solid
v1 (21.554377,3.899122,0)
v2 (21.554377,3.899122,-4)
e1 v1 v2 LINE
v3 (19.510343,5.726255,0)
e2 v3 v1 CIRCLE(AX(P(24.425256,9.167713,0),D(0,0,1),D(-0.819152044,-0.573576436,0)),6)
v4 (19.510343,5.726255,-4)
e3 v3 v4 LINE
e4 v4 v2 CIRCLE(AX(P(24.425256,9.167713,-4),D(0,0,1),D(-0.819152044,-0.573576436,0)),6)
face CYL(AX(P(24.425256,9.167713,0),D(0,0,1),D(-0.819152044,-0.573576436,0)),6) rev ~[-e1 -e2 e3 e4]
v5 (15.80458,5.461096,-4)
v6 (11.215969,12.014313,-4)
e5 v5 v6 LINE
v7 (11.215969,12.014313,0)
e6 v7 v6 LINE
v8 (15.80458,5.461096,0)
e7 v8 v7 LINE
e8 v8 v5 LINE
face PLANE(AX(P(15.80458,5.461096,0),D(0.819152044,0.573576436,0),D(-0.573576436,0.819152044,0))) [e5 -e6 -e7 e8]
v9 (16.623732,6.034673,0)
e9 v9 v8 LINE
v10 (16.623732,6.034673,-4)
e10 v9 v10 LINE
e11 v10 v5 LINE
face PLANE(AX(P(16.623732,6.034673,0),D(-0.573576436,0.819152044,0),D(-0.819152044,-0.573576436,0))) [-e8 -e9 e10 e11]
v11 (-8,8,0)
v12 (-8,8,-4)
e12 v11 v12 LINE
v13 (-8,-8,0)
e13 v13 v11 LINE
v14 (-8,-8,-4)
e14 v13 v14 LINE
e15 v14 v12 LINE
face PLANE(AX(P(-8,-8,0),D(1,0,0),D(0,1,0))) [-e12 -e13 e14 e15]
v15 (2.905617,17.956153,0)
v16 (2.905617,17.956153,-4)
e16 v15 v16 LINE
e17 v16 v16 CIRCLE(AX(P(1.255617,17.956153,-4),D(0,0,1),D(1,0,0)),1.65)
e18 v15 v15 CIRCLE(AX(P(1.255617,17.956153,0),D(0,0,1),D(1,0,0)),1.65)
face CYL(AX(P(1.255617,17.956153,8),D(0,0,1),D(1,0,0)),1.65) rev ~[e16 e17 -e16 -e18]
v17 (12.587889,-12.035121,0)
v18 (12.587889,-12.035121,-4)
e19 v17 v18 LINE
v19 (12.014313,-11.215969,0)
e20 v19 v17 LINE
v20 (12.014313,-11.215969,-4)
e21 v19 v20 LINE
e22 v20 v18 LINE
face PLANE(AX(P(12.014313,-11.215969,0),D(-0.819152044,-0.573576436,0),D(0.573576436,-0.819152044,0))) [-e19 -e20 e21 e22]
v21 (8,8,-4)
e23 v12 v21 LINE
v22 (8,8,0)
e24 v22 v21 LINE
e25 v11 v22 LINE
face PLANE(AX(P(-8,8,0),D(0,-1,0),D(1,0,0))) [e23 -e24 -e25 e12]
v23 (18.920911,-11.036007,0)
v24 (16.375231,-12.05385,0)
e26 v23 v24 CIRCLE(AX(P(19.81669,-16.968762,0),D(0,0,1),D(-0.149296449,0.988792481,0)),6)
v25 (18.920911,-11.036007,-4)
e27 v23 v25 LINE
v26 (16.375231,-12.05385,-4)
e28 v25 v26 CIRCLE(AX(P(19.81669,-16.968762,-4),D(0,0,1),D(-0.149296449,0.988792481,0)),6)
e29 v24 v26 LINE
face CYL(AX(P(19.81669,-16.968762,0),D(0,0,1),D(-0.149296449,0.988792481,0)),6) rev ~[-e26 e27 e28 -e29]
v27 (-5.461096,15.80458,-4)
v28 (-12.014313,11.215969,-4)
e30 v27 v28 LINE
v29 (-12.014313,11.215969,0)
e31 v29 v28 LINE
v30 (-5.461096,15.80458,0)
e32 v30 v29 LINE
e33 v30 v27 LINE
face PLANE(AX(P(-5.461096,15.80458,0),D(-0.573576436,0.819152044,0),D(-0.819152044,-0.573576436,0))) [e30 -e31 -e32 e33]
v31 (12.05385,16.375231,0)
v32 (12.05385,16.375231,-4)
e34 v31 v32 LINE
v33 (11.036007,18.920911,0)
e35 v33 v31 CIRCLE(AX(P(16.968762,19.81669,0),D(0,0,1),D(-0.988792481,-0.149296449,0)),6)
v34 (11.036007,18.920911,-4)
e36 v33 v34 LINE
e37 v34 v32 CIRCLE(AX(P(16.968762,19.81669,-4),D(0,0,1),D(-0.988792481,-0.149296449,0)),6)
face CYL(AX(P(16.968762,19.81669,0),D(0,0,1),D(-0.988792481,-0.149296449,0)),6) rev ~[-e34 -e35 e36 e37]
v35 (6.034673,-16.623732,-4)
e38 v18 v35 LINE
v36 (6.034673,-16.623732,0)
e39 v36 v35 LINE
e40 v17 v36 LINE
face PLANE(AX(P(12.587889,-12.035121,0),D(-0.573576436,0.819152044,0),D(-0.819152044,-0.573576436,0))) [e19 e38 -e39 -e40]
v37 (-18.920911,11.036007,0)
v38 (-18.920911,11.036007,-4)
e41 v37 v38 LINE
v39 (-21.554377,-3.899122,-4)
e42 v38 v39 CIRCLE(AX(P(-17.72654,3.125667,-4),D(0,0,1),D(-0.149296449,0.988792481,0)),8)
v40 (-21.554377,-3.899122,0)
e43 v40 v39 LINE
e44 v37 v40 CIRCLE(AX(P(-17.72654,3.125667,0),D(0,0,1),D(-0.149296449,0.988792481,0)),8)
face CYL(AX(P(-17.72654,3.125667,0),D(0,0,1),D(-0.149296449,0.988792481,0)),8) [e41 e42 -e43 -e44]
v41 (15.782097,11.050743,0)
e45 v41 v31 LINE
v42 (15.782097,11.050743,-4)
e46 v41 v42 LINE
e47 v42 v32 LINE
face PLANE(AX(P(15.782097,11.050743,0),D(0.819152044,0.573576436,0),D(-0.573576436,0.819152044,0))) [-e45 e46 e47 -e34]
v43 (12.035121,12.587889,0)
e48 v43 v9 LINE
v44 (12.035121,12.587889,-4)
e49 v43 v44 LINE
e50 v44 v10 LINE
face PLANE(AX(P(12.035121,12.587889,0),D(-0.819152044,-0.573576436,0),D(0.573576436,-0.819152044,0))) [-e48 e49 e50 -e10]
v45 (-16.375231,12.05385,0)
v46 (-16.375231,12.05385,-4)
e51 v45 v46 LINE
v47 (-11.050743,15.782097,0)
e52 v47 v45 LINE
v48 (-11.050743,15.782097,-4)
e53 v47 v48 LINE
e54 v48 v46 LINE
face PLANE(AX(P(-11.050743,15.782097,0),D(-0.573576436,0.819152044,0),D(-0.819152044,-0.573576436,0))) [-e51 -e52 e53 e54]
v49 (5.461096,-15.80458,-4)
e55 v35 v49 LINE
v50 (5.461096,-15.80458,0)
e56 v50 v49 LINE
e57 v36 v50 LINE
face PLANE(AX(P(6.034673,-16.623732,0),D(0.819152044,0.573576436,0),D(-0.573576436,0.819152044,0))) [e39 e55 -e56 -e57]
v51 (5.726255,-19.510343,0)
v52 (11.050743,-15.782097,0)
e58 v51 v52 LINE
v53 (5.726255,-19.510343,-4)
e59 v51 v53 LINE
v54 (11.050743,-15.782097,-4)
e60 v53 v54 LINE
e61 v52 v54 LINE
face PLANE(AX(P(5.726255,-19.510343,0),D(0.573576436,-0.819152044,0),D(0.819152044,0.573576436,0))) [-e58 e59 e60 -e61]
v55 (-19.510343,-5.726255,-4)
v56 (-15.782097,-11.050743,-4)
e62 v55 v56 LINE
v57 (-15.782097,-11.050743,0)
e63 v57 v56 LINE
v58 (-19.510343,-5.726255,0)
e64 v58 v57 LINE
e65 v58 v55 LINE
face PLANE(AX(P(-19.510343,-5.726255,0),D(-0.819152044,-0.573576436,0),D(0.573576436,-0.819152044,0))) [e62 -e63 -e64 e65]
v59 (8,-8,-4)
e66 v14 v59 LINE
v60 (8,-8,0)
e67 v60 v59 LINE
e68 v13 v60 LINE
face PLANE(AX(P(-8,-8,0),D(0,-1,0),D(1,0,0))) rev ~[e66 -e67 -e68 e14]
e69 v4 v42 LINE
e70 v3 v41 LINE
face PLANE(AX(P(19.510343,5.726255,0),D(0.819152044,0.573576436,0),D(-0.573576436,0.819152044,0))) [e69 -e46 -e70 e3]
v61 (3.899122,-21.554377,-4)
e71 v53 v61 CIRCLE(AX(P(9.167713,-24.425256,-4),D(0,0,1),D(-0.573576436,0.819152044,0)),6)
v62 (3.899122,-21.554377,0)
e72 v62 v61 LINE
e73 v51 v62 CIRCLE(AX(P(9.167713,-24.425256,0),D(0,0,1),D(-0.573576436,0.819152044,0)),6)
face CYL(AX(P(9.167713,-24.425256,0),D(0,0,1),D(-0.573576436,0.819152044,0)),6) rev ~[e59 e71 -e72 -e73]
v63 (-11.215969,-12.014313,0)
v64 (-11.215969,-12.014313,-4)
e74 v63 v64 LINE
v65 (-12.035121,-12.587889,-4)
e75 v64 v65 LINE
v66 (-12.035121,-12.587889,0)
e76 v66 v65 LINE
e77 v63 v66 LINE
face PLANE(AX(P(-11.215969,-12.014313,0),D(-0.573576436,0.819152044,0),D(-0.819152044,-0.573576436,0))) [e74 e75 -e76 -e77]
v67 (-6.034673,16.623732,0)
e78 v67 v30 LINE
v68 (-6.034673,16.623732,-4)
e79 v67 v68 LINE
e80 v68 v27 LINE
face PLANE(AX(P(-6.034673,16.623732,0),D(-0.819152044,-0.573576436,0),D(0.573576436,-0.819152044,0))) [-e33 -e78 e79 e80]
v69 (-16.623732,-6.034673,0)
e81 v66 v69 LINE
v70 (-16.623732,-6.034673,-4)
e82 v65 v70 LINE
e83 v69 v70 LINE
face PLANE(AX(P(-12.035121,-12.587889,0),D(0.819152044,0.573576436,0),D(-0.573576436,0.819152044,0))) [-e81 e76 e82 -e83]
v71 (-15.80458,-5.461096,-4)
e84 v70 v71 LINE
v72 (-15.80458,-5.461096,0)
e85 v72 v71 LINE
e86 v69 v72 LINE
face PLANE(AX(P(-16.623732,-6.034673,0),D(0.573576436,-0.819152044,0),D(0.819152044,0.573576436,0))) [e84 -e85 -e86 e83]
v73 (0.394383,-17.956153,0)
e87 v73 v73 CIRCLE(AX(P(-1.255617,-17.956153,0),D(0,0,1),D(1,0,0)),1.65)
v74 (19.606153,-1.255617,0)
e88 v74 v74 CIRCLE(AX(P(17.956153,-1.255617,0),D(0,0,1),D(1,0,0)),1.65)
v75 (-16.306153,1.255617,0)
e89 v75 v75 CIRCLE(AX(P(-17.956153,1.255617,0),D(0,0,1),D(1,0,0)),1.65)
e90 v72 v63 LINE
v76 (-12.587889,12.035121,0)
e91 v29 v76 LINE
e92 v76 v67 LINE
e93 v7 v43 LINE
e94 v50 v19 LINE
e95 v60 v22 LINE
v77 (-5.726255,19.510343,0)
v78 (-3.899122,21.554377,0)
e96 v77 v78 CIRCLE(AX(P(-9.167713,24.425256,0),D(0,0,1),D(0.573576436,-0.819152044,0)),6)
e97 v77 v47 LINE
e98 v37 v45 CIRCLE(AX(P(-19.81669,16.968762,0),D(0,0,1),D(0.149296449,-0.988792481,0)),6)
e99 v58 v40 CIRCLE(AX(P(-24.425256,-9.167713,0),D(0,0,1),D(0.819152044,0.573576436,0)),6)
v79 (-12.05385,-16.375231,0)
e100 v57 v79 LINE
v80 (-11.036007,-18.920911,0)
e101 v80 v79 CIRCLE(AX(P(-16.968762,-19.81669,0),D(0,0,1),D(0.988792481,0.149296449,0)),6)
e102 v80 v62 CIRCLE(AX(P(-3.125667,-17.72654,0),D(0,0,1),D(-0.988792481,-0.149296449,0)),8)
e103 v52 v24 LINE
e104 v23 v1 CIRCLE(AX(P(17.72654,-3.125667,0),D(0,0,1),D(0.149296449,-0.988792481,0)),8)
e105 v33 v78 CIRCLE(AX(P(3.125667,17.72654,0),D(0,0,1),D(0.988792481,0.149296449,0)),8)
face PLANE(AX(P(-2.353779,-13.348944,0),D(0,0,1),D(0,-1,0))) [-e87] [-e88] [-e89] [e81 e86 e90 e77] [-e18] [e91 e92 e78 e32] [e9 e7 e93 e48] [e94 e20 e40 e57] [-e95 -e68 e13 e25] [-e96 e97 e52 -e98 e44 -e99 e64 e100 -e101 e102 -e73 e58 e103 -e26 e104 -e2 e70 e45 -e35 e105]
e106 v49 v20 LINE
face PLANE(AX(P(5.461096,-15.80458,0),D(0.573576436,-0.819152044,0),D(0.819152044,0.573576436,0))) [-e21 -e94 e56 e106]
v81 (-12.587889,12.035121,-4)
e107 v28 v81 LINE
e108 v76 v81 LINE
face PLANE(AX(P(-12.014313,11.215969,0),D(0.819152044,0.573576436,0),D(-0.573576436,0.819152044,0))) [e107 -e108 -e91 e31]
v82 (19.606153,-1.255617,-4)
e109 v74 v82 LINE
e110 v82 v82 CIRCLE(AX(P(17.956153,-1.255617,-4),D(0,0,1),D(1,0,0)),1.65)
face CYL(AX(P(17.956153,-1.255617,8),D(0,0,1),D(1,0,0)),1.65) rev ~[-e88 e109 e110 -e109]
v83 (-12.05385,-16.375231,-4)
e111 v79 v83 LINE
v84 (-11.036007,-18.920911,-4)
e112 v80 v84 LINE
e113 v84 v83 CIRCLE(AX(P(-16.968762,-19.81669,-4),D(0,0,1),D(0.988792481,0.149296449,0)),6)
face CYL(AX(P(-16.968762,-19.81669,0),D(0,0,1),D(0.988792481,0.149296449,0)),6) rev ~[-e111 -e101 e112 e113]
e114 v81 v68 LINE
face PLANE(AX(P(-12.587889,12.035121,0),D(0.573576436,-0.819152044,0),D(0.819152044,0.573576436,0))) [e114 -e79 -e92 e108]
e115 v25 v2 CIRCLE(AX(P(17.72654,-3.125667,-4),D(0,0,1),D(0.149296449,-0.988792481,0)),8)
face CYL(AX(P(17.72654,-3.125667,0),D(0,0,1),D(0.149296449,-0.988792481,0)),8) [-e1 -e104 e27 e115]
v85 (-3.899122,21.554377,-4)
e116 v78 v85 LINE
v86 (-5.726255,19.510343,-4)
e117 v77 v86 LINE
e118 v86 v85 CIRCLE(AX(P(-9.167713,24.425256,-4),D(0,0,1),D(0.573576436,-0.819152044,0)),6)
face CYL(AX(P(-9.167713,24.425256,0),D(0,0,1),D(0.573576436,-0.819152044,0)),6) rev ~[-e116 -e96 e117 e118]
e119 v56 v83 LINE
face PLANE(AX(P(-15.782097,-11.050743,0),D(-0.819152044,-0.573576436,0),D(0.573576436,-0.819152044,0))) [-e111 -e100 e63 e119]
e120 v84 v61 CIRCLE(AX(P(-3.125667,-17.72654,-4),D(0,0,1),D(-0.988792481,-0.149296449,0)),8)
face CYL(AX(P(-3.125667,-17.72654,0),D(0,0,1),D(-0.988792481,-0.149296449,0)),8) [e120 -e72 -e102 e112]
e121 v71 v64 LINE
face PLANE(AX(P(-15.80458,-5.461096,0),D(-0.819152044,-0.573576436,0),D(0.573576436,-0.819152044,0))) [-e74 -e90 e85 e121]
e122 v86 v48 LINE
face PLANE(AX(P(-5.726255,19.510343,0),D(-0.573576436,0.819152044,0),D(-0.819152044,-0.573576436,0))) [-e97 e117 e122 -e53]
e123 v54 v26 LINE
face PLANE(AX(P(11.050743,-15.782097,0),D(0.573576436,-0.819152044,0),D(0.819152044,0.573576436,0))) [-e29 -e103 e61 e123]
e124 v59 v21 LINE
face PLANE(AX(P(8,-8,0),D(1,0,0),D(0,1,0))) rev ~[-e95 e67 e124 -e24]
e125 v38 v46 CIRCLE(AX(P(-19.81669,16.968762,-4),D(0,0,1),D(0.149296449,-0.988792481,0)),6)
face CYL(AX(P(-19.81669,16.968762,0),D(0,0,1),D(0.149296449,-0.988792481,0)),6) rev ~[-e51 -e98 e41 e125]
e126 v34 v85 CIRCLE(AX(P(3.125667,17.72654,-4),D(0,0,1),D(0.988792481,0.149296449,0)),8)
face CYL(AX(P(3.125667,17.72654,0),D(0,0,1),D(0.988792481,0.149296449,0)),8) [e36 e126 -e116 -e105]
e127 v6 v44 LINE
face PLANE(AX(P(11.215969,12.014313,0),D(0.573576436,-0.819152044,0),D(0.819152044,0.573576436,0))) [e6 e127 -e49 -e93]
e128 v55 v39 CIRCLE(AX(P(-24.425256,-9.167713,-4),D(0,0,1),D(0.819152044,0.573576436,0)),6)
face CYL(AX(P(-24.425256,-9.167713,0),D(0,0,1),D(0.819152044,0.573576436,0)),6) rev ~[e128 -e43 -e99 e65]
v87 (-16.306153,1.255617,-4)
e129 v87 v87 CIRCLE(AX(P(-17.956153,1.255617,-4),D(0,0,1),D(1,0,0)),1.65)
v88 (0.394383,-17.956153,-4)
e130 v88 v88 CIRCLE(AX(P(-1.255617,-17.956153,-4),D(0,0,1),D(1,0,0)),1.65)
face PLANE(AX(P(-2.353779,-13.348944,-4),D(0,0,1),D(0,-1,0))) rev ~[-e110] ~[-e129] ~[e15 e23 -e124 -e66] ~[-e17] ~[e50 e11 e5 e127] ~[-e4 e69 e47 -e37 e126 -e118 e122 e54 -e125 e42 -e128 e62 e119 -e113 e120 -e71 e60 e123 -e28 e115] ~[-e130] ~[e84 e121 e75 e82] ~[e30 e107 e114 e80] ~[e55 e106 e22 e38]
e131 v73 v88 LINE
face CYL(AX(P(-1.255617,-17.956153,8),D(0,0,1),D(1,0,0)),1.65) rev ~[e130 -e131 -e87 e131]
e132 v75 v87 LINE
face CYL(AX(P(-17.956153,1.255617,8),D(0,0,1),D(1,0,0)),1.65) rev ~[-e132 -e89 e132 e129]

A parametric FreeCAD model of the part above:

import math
import FreeCAD as App
import Part
import Sketcher

V = App.Vector
Q = App.Units.Quantity


def add_polygon(sketch, points):
    """Adds a closed chain of lines whose ends are joined by coincident constraints."""
    first, n = sketch.GeometryCount, len(points)
    for a, b in zip(points, points[1:] + points[:1]):
        sketch.addGeometry(Part.LineSegment(App.Vector(*a, 0), App.Vector(*b, 0)), False)
    for i in range(n):
        sketch.addConstraint(Sketcher.Constraint("Coincident", first + i, 2, first + (i + 1) % n, 1))

doc = App.newDocument("Part")
body = doc.addObject("PartDesign::Body", "Body")

# Sketch on XY plane
sketch1 = body.newObject("Sketcher::SketchObject", "Sketch")
sketch1.AttachmentSupport = (doc.getObject("XY_Plane"), [""])
sketch1.MapMode = "FlatFace"
sketch1.addGeometry(Part.ArcOfCircle(Part.Circle(V(17.7, -3.1, 0), V(0, 0, 1), 8), math.radians(-81), math.radians(61)), False)
sketch1.addGeometry(Part.ArcOfCircle(Part.Circle(V(24.4, 9.2, 0), V(0, 0, 1), 6), math.radians(-145), math.radians(-119)), False)
sketch1.addGeometry(Part.LineSegment(V(19.5, 5.7, 0), V(15.8, 11.1, 0)), False)
sketch1.addGeometry(Part.LineSegment(V(15.8, 11.1, 0), V(0, 0, 0)), False)
sketch1.addGeometry(Part.LineSegment(V(0, 0, 0), V(11.1, -15.8, 0)), False)
sketch1.addGeometry(Part.LineSegment(V(11.1, -15.8, 0), V(16.4, -12.1, 0)), False)
sketch1.addGeometry(Part.ArcOfCircle(Part.Circle(V(19.8, -17, 0), V(0, 0, 1), 6), math.radians(99), math.radians(125)), False)
sketch1.addConstraint(Sketcher.Constraint("Tangent", 0, 2, 1, 2))
sketch1.addConstraint(Sketcher.Constraint("Tangent", 1, 1, 2, 1))
sketch1.addConstraint(Sketcher.Constraint("Coincident", 2, 2, 3, 1))
sketch1.addConstraint(Sketcher.Constraint("Coincident", 3, 2, 4, 1))
sketch1.addConstraint(Sketcher.Constraint("Coincident", 4, 2, 5, 1))
sketch1.addConstraint(Sketcher.Constraint("Tangent", 5, 2, 6, 2))
sketch1.addConstraint(Sketcher.Constraint("Tangent", 6, 1, 0, 1))
sketch1.addConstraint(Sketcher.Constraint("Coincident", 3, 2, -1, 1))
sketch1.addConstraint(Sketcher.Constraint("Equal", 1, 6))
sketch1.addConstraint(Sketcher.Constraint("Perpendicular", 2, 3))
sketch1.addConstraint(Sketcher.Constraint("Perpendicular", 3, 4))
sketch1.addConstraint(Sketcher.Constraint("Perpendicular", 4, 5))
sketch1.addConstraint(Sketcher.Constraint("Equal", 3, 4))
sketch1.addConstraint(Sketcher.Constraint("Equal", 2, 5))
sketch1.addConstraint(Sketcher.Constraint("Radius", 0, 8.0))
sketch1.addConstraint(Sketcher.Constraint("Radius", 1, 6.0))
sketch1.addConstraint(Sketcher.Constraint("Angle", 2, Q("125 deg")))
sketch1.addConstraint(Sketcher.Constraint("Distance", 2, 6.5))
sketch1.addConstraint(Sketcher.Constraint("DistanceX", 4, 2, 1, 1, 8.4596))
pad1 = body.newObject("PartDesign::Pad", "Pad")
pad1.Profile = sketch1
pad1.Length = 4
pad1.Reversed = True
doc.recompute()

polarpattern = body.newObject("PartDesign::PolarPattern", "PolarPattern")
polarpattern.Originals = [pad1]
polarpattern.Axis = (doc.getObject("Z_Axis"), [""])
polarpattern.Angle = 360
polarpattern.Occurrences = 4
body.Tip = polarpattern

# Sketch on XY plane
sketch2 = body.newObject("Sketcher::SketchObject", "Sketch001")
sketch2.AttachmentSupport = (doc.getObject("XY_Plane"), [""])
sketch2.MapMode = "FlatFace"
add_polygon(sketch2, [(-8, 8), (-8, -8), (8, -8), (8, 8)])  # lines 0-3
sketch2.addConstraint(Sketcher.Constraint("Vertical", 0))
sketch2.addConstraint(Sketcher.Constraint("Horizontal", 1))
sketch2.addConstraint(Sketcher.Constraint("Vertical", 2))
sketch2.addConstraint(Sketcher.Constraint("Horizontal", 3))
sketch2.addConstraint(Sketcher.Constraint("Symmetric", 0, 2, 2, 2, -1, 1))
sketch2.addConstraint(Sketcher.Constraint("Equal", 3, 0))
sketch2.addConstraint(Sketcher.Constraint("DistanceX", 1, 1, 1, 2, 16.0))
pocket1 = body.newObject("PartDesign::Pocket", "Pocket")
pocket1.Profile = sketch2
pocket1.Type = "ThroughAll"

# Sketch on XY plane
sketch3 = body.newObject("Sketcher::SketchObject", "Sketch002")
sketch3.AttachmentSupport = (doc.getObject("XY_Plane"), [""])
sketch3.MapMode = "FlatFace"
sketch3.AttachmentOffset = App.Placement(V(0, 0, 8), App.Rotation())
sketch3.addGeometry(Part.Circle(V(1.3, 18, 0), V(0, 0, 1), 1.6), False)
sketch3.addGeometry(Part.Circle(V(-1.3, -18, 0), V(0, 0, 1), 1.6), False)
sketch3.addGeometry(Part.Circle(V(-18, 1.3, 0), V(0, 0, 1), 1.6), False)
sketch3.addGeometry(Part.Circle(V(18, -1.3, 0), V(0, 0, 1), 1.6), False)
sketch3.addConstraint(Sketcher.Constraint("Equal", 0, 1))
sketch3.addConstraint(Sketcher.Constraint("Equal", 1, 2))
sketch3.addConstraint(Sketcher.Constraint("Equal", 2, 3))
sketch3.addConstraint(Sketcher.Constraint("Symmetric", 0, 3, 1, 3, -1, 1))
sketch3.addConstraint(Sketcher.Constraint("Symmetric", 2, 3, 3, 3, -1, 1))
sketch3.addConstraint(Sketcher.Constraint("Diameter", 0, 3.3))
sketch3.addConstraint(Sketcher.Constraint("DistanceX", 2, 3, 0, 3, 19.211769))
sketch3.addConstraint(Sketcher.Constraint("DistanceY", 1, 3, 2, 3, 19.211769))
sketch3.addConstraint(Sketcher.Constraint("DistanceX", -1, 1, 0, 3, 1.255617))
sketch3.addConstraint(Sketcher.Constraint("DistanceY", -1, 1, 0, 3, 17.956153))
pocket2 = body.newObject("PartDesign::Pocket", "Pocket001")
pocket2.Profile = sketch3
pocket2.Type = "ThroughAll"

# Sketch on XY plane
sketch4 = body.newObject("Sketcher::SketchObject", "Sketch003")
sketch4.AttachmentSupport = (doc.getObject("XY_Plane"), [""])
sketch4.MapMode = "FlatFace"
add_polygon(sketch4, [(12, 12.6), (11.2, 12), (15.8, 5.5), (16.6, 6)])  # lines 0-3
sketch4.addConstraint(Sketcher.Constraint("Perpendicular", 0, 1))
sketch4.addConstraint(Sketcher.Constraint("Perpendicular", 1, 2))
sketch4.addConstraint(Sketcher.Constraint("Perpendicular", 2, 3))
sketch4.addConstraint(Sketcher.Constraint("Angle", 0, Q("-145 deg")))
sketch4.addConstraint(Sketcher.Constraint("Distance", 0, 1.0))
sketch4.addConstraint(Sketcher.Constraint("Distance", 1, 8.0))
sketch4.addConstraint(Sketcher.Constraint("DistanceX", -1, 1, 0, 2, 11.215969))
sketch4.addConstraint(Sketcher.Constraint("DistanceY", -1, 1, 3, 2, 12.587889))
pocket3 = body.newObject("PartDesign::Pocket", "Pocket002")
pocket3.Profile = sketch4
pocket3.Type = "ThroughAll"
doc.recompute()

polarpattern2 = body.newObject("PartDesign::PolarPattern", "PolarPattern001")
polarpattern2.Originals = [pocket3]
polarpattern2.Axis = (doc.getObject("Z_Axis"), [""])
polarpattern2.Angle = 360
polarpattern2.Occurrences = 4
body.Tip = polarpattern2

doc.recompute()
